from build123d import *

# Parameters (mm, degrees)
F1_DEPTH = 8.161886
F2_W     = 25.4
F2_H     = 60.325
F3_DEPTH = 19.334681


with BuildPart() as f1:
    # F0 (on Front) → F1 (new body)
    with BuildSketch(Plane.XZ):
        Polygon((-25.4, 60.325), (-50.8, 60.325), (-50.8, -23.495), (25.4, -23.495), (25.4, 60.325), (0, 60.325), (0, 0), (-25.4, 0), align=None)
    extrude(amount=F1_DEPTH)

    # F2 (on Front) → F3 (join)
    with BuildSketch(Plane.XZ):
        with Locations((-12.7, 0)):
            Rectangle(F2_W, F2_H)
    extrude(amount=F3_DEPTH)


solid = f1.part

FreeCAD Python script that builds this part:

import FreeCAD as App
import Part
import Sketcher
Q = App.Units.Quantity


def add_polygon(sketch, points):
    """Adds a closed chain of lines whose ends are joined by coincident constraints."""
    first, n = sketch.GeometryCount, len(points)
    for a, b in zip(points, points[1:] + points[:1]):
        sketch.addGeometry(Part.LineSegment(App.Vector(*a, 0), App.Vector(*b, 0)), False)
    for i in range(n):
        sketch.addConstraint(Sketcher.Constraint("Coincident", first + i, 2, first + (i + 1) % n, 1))

doc = App.newDocument("Part")
body = doc.addObject("PartDesign::Body", "Body")

sketch1 = doc.addObject("Sketcher::SketchObject", "Sketch")
body.addObject(sketch1)
sketch1.AttachmentSupport = (doc.XZ_Plane, [""])
sketch1.MapMode = "FlatFace"
add_polygon(sketch1, [(-25, 60), (-51, 60), (-51, -23), (25, -23), (25, 60), (0, 60), (0, 0), (-25, 0)])
sketch1.addConstraint(Sketcher.Constraint("Horizontal", 0))
sketch1.addConstraint(Sketcher.Constraint("Vertical", 1))
sketch1.addConstraint(Sketcher.Constraint("Horizontal", 2))
sketch1.addConstraint(Sketcher.Constraint("Vertical", 3))
sketch1.addConstraint(Sketcher.Constraint("Horizontal", 4))
sketch1.addConstraint(Sketcher.Constraint("Vertical", 5))
sketch1.addConstraint(Sketcher.Constraint("Horizontal", 6))
sketch1.addConstraint(Sketcher.Constraint("Vertical", 7))
sketch1.addConstraint(Sketcher.Constraint("Coincident", 5, 2, -1, 1))
sketch1.addConstraint(Sketcher.Constraint("Symmetric", 3, 2, 7, 2, -2))
sketch1.addConstraint(Sketcher.Constraint("Equal", 0, 4))
sketch1.addConstraint(Sketcher.Constraint("DistanceX", 0, 2, 0, 1, Q("1 in")))
sketch1.addConstraint(Sketcher.Constraint("DistanceY", 1, 2, 1, 1, Q("3.3 in")))
sketch1.addConstraint(Sketcher.Constraint("DistanceY", 5, 2, 5, 1, Q("2.375 in")))
pad1 = doc.addObject("PartDesign::Pad", "Pad")
body.addObject(pad1)
pad1.Profile = sketch1
pad1.Length = 8.161886

sketch2 = doc.addObject("Sketcher::SketchObject", "Sketch001")
body.addObject(sketch2)
sketch2.AttachmentSupport = (doc.XZ_Plane, [""])
sketch2.MapMode = "FlatFace"
add_polygon(sketch2, [(-25, 30), (-25, -30), (0, -30), (0, 30)])
sketch2.addConstraint(Sketcher.Constraint("Vertical", 0))
sketch2.addConstraint(Sketcher.Constraint("Horizontal", 1))
sketch2.addConstraint(Sketcher.Constraint("Vertical", 2))
sketch2.addConstraint(Sketcher.Constraint("Horizontal", 3))
sketch2.addConstraint(Sketcher.Constraint("Symmetric", 1, 2, 2, 2, -1, 1))
sketch2.addConstraint(Sketcher.Constraint("DistanceX", 1, 1, 1, 2, Q("1 in")))
sketch2.addConstraint(Sketcher.Constraint("DistanceY", 0, 2, 0, 1, Q("2.375 in")))
pad2 = doc.addObject("PartDesign::Pad", "Pad001")
body.addObject(pad2)
pad2.Profile = sketch2
pad2.Length = 19.334681

doc.recompute()
